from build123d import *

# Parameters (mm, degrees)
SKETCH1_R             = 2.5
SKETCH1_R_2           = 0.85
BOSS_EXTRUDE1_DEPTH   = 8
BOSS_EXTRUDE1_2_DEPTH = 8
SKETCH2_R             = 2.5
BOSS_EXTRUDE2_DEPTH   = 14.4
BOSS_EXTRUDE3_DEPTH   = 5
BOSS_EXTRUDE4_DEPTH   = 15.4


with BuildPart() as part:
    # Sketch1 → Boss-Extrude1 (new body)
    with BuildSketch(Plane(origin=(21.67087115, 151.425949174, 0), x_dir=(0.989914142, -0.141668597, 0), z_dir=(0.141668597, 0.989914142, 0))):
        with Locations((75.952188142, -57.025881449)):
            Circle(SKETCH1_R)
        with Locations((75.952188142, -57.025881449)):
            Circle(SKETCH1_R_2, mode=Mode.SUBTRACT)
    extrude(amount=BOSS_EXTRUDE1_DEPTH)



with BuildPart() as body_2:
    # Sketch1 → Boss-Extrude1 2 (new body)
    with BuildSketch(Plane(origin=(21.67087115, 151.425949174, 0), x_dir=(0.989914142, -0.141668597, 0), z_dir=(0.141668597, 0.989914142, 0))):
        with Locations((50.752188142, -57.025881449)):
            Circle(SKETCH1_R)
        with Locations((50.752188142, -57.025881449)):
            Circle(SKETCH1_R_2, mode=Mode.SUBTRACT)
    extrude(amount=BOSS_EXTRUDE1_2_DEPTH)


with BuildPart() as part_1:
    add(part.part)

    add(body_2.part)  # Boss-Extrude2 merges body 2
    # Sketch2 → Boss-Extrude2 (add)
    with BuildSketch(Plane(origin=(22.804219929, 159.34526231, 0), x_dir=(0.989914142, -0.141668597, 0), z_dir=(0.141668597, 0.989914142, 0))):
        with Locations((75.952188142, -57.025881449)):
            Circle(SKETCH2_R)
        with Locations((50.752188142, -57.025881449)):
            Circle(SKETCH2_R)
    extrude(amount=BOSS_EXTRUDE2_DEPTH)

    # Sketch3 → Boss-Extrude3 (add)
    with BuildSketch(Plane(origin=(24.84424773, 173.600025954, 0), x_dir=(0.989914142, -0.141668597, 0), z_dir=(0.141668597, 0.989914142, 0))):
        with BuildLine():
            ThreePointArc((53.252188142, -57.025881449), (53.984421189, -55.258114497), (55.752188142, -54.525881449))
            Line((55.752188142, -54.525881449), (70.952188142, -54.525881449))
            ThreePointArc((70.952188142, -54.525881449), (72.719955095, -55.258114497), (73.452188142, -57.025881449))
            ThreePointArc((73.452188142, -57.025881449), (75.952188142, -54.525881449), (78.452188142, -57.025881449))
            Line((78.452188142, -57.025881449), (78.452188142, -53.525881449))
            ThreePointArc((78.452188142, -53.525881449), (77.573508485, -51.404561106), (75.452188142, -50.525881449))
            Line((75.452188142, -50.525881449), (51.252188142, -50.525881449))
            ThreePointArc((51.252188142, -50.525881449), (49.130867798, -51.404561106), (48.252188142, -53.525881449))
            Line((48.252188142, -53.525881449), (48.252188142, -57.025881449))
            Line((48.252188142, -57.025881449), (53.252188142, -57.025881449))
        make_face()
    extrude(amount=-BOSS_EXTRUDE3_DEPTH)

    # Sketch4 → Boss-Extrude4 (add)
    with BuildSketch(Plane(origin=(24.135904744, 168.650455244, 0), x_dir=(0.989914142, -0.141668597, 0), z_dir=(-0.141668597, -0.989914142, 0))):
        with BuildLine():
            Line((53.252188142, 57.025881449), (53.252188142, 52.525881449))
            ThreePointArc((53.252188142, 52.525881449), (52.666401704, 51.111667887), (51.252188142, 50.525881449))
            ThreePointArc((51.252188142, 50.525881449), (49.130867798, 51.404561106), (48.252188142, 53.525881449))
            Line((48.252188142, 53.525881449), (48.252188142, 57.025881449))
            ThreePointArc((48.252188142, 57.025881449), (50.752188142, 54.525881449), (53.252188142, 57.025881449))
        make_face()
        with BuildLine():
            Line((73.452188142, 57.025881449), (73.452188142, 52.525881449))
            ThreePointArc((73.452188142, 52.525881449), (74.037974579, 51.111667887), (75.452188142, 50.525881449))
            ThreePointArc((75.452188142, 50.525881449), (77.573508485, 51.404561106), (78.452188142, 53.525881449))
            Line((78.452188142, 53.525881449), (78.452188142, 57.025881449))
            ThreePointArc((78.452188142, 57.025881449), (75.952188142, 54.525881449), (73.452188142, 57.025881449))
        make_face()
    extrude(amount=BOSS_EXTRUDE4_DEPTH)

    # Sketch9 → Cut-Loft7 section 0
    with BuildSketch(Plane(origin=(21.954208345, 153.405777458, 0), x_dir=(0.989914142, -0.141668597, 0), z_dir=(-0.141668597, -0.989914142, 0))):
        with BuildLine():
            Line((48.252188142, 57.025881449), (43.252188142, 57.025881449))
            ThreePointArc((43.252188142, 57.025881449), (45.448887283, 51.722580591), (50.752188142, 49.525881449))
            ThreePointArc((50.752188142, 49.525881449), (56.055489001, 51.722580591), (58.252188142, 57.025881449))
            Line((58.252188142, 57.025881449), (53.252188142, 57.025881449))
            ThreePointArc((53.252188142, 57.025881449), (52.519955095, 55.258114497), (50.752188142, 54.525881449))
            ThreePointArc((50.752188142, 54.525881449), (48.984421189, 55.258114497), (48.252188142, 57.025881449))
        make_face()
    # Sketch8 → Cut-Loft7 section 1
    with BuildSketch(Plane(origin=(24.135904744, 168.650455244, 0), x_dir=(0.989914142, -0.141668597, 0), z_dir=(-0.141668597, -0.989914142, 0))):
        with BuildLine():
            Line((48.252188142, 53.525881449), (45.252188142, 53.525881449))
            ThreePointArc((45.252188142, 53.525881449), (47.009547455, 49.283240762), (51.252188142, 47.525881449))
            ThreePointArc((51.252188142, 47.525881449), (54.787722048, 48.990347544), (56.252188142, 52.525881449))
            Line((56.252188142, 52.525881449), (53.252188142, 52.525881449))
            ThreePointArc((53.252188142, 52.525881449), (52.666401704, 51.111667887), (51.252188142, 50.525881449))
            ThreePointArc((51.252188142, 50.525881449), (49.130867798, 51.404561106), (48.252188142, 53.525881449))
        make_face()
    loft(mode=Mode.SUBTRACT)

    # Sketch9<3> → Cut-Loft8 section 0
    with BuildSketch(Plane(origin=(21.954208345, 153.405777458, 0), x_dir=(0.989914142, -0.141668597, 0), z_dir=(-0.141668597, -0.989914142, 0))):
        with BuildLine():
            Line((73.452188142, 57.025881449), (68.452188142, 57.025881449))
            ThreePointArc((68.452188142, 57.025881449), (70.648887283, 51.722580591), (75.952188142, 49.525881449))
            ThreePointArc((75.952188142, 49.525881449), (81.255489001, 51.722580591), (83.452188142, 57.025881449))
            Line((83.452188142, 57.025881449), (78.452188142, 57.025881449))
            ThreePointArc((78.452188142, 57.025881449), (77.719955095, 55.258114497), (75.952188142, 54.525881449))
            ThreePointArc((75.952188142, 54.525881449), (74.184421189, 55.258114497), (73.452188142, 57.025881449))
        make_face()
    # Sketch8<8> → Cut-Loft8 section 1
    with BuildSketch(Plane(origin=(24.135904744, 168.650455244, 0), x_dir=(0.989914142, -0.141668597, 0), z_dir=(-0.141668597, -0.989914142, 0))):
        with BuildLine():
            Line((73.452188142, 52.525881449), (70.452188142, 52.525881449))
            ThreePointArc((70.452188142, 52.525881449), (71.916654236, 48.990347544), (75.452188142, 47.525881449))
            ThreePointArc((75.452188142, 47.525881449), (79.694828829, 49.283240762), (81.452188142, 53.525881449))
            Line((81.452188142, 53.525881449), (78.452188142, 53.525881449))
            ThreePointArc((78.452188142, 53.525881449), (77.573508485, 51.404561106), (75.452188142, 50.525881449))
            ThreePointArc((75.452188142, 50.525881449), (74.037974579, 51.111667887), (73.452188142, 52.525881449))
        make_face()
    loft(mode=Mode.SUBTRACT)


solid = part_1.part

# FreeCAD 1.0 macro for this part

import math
import FreeCAD as App
import Part
import Sketcher
from FreeCAD import Vector
Q = App.Units.Quantity

doc = App.newDocument("Part")
body = doc.addObject("PartDesign::Body", "Body")

# Sketch on an angled plane
sketch1 = body.newObject("Sketcher::SketchObject", "Sketch")
sketch1.Placement = App.Placement(Vector(21.670871, 151.425949, 0), App.Rotation(Vector(0.989914142, -0.141668597, 0), Vector(0, 0, -1), Vector(0.141668597, 0.989914142, 0), "ZXY"))
sketch1.addGeometry(Part.Circle(Vector(75.952188, -57.025881, 0), Vector(0, 0, 1), 2.5), False)
sketch1.addGeometry(Part.Circle(Vector(75.952188, -57.025881, 0), Vector(0, 0, 1), 0.85), False)
sketch1.addConstraint(Sketcher.Constraint("Coincident", 1, 3, 0, 3))
sketch1.addConstraint(Sketcher.Constraint("Diameter", 0, Q("5 mm")))
sketch1.addConstraint(Sketcher.Constraint("Diameter", 1, Q("1.7 mm")))
sketch1.addConstraint(Sketcher.Constraint("DistanceX", -1, 1, 0, 3, Q("75.952188 mm")))
sketch1.addConstraint(Sketcher.Constraint("DistanceY", 0, 3, -1, 1, Q("57.025881 mm")))
pad1 = body.newObject("PartDesign::Pad", "Pad")
pad1.Profile = sketch1
pad1.Length = 8
body2 = doc.addObject("PartDesign::Body", "Body001")

# Sketch on an angled plane
sketch2 = body2.newObject("Sketcher::SketchObject", "Sketch001")
sketch2.Placement = App.Placement(Vector(21.670871, 151.425949, 0), App.Rotation(Vector(0.989914142, -0.141668597, 0), Vector(0, 0, -1), Vector(0.141668597, 0.989914142, 0), "ZXY"))
sketch2.addGeometry(Part.Circle(Vector(50.752188, -57.025881, 0), Vector(0, 0, 1), 2.5), False)
sketch2.addGeometry(Part.Circle(Vector(50.752188, -57.025881, 0), Vector(0, 0, 1), 0.85), False)
sketch2.addConstraint(Sketcher.Constraint("Coincident", 1, 3, 0, 3))
sketch2.addConstraint(Sketcher.Constraint("Diameter", 0, Q("5 mm")))
sketch2.addConstraint(Sketcher.Constraint("Diameter", 1, Q("1.7 mm")))
sketch2.addConstraint(Sketcher.Constraint("DistanceX", -1, 1, 0, 3, Q("50.752188 mm")))
sketch2.addConstraint(Sketcher.Constraint("DistanceY", 0, 3, -1, 1, Q("57.025881 mm")))
pad2 = body2.newObject("PartDesign::Pad", "Pad001")
pad2.Profile = sketch2
pad2.Length = 8
body.AllowCompound = True
doc.recompute()

boolean = body.newObject("PartDesign::Boolean", "Boolean")
boolean.Type = "Fuse"
boolean.addObjects([body2])

# Sketch on an angled plane
sketch3 = body.newObject("Sketcher::SketchObject", "Sketch002")
sketch3.Placement = App.Placement(Vector(22.80422, 159.345262, 0), App.Rotation(Vector(0.989914142, -0.141668597, 0), Vector(0, 0, -1), Vector(0.141668597, 0.989914142, 0), "ZXY"))
sketch3.addGeometry(Part.Circle(Vector(75.952188, -57.025881, 0), Vector(0, 0, 1), 2.5), False)
sketch3.addGeometry(Part.Circle(Vector(50.752188, -57.025881, 0), Vector(0, 0, 1), 2.5), False)
sketch3.addConstraint(Sketcher.Constraint("Equal", 0, 1))
sketch3.addConstraint(Sketcher.Constraint("Horizontal", 0, 3, 1, 3))
sketch3.addConstraint(Sketcher.Constraint("Diameter", 0, Q("5 mm")))
sketch3.addConstraint(Sketcher.Constraint("DistanceX", 1, 3, 0, 3, Q("25.2 mm")))
sketch3.addConstraint(Sketcher.Constraint("DistanceX", -1, 1, 0, 3, Q("75.952188 mm")))
sketch3.addConstraint(Sketcher.Constraint("DistanceY", 0, 3, -1, 1, Q("57.025881 mm")))
pad3 = body.newObject("PartDesign::Pad", "Pad002")
pad3.Profile = sketch3
pad3.Length = 14.4

# Sketch on an angled plane
sketch4 = body.newObject("Sketcher::SketchObject", "Sketch003")
sketch4.Placement = App.Placement(Vector(24.844248, 173.600026, 0), App.Rotation(Vector(0.989914142, -0.141668597, 0), Vector(0, 0, -1), Vector(0.141668597, 0.989914142, 0), "ZXY"))
sketch4.addGeometry(Part.ArcOfCircle(Part.Circle(Vector(55.752188, -57.025881, 0), Vector(0, 0, 1), 2.5), math.radians(90), math.radians(180)), False)
sketch4.addGeometry(Part.LineSegment(Vector(55.752188, -54.525881, 0), Vector(70.952188, -54.525881, 0)), False)
sketch4.addGeometry(Part.ArcOfCircle(Part.Circle(Vector(70.952188, -57.025881, 0), Vector(0, 0, 1), 2.5), math.radians(0), math.radians(90)), False)
sketch4.addGeometry(Part.ArcOfCircle(Part.Circle(Vector(75.952188, -57.025881, 0), Vector(0, 0, 1), 2.5), math.radians(0), math.radians(180)), False)
sketch4.addGeometry(Part.LineSegment(Vector(78.452188, -57.025881, 0), Vector(78.452188, -53.525881, 0)), False)
sketch4.addGeometry(Part.ArcOfCircle(Part.Circle(Vector(75.452188, -53.525881, 0), Vector(0, 0, 1), 3), math.radians(0), math.radians(90)), False)
sketch4.addGeometry(Part.LineSegment(Vector(75.452188, -50.525881, 0), Vector(51.252188, -50.525881, 0)), False)
sketch4.addGeometry(Part.ArcOfCircle(Part.Circle(Vector(51.252188, -53.525881, 0), Vector(0, 0, 1), 3), math.radians(90), math.radians(180)), False)
sketch4.addGeometry(Part.LineSegment(Vector(48.252188, -53.525881, 0), Vector(48.252188, -57.025881, 0)), False)
sketch4.addGeometry(Part.LineSegment(Vector(48.252188, -57.025881, 0), Vector(53.252188, -57.025881, 0)), False)
sketch4.addConstraint(Sketcher.Constraint("Tangent", 0, 1, 1, 1))
sketch4.addConstraint(Sketcher.Constraint("Tangent", 1, 2, 2, 2))
sketch4.addConstraint(Sketcher.Constraint("Tangent", 2, 1, 3, 2))
sketch4.addConstraint(Sketcher.Constraint("Tangent", 3, 1, 4, 1))
sketch4.addConstraint(Sketcher.Constraint("Tangent", 4, 2, 5, 1))
sketch4.addConstraint(Sketcher.Constraint("Tangent", 5, 2, 6, 1))
sketch4.addConstraint(Sketcher.Constraint("Tangent", 6, 2, 7, 1))
sketch4.addConstraint(Sketcher.Constraint("Tangent", 7, 2, 8, 1))
sketch4.addConstraint(Sketcher.Constraint("Coincident", 8, 2, 9, 1))
sketch4.addConstraint(Sketcher.Constraint("Coincident", 9, 2, 0, 2))
sketch4.addConstraint(Sketcher.Constraint("Horizontal", 1))
sketch4.addConstraint(Sketcher.Constraint("Vertical", 4))
sketch4.addConstraint(Sketcher.Constraint("Horizontal", 6))
sketch4.addConstraint(Sketcher.Constraint("Vertical", 8))
sketch4.addConstraint(Sketcher.Constraint("Horizontal", 9))
sketch4.addConstraint(Sketcher.Constraint("Equal", 0, 2))
sketch4.addConstraint(Sketcher.Constraint("Equal", 2, 3))
sketch4.addConstraint(Sketcher.Constraint("Equal", 5, 7))
sketch4.addConstraint(Sketcher.Constraint("Horizontal", 2, 3, 3, 3))
sketch4.addConstraint(Sketcher.Constraint("Horizontal", 3, 1, 8, 2))
sketch4.addConstraint(Sketcher.Constraint("Radius", 5, Q("3 mm")))
sketch4.addConstraint(Sketcher.Constraint("Radius", 0, Q("2.5 mm")))
sketch4.addConstraint(Sketcher.Constraint("DistanceX", 9, 1, 9, 2, Q("5 mm")))
sketch4.addConstraint(Sketcher.Constraint("DistanceX", 1, 1, 1, 2, Q("15.2 mm")))
sketch4.addConstraint(Sketcher.Constraint("DistanceY", 4, 1, 4, 2, Q("3.5 mm")))
sketch4.addConstraint(Sketcher.Constraint("DistanceX", -1, 1, 0, 3, Q("55.752188 mm")))
sketch4.addConstraint(Sketcher.Constraint("DistanceY", 0, 3, -1, 1, Q("57.025881 mm")))
pad4 = body.newObject("PartDesign::Pad", "Pad003")
pad4.Profile = sketch4
pad4.Length = 5
pad4.Reversed = True

# Sketch on an angled plane
sketch5 = body.newObject("Sketcher::SketchObject", "Sketch004")
sketch5.Placement = App.Placement(Vector(24.135905, 168.650455, 0), App.Rotation(Vector(0.989914142, -0.141668597, 0), Vector(0, 0, 1), Vector(-0.141668597, -0.989914142, 0), "ZXY"))
sketch5.addGeometry(Part.LineSegment(Vector(53.252188, 52.525881, 0), Vector(53.252188, 57.025881, 0)), False)
sketch5.addGeometry(Part.ArcOfCircle(Part.Circle(Vector(50.752188, 57.025881, 0), Vector(0, 0, 1), 2.5), math.radians(180), math.radians(360)), False)
sketch5.addGeometry(Part.LineSegment(Vector(48.252188, 57.025881, 0), Vector(48.252188, 53.525881, 0)), False)
sketch5.addGeometry(Part.ArcOfCircle(Part.Circle(Vector(51.252188, 53.525881, 0), Vector(0, 0, 1), 3), math.radians(180), math.radians(270)), False)
sketch5.addGeometry(Part.ArcOfCircle(Part.Circle(Vector(51.252188, 52.525881, 0), Vector(0, 0, 1), 2), math.radians(-90), math.radians(0)), False)
sketch5.addGeometry(Part.LineSegment(Vector(73.452188, 57.025881, 0), Vector(73.452188, 52.525881, 0)), False)
sketch5.addGeometry(Part.ArcOfCircle(Part.Circle(Vector(75.452188, 52.525881, 0), Vector(0, 0, 1), 2), math.radians(180), math.radians(270)), False)
sketch5.addGeometry(Part.ArcOfCircle(Part.Circle(Vector(75.452188, 53.525881, 0), Vector(0, 0, 1), 3), math.radians(-90), math.radians(0)), False)
sketch5.addGeometry(Part.LineSegment(Vector(78.452188, 53.525881, 0), Vector(78.452188, 57.025881, 0)), False)
sketch5.addGeometry(Part.ArcOfCircle(Part.Circle(Vector(75.952188, 57.025881, 0), Vector(0, 0, 1), 2.5), math.radians(180), math.radians(360)), False)
sketch5.addConstraint(Sketcher.Constraint("Tangent", 0, 2, 1, 2))
sketch5.addConstraint(Sketcher.Constraint("Tangent", 1, 1, 2, 1))
sketch5.addConstraint(Sketcher.Constraint("Tangent", 2, 2, 3, 1))
sketch5.addConstraint(Sketcher.Constraint("Tangent", 3, 2, 4, 1))
sketch5.addConstraint(Sketcher.Constraint("Tangent", 4, 2, 0, 1))
sketch5.addConstraint(Sketcher.Constraint("Tangent", 5, 2, 6, 1))
sketch5.addConstraint(Sketcher.Constraint("Tangent", 6, 2, 7, 1))
sketch5.addConstraint(Sketcher.Constraint("Tangent", 7, 2, 8, 1))
sketch5.addConstraint(Sketcher.Constraint("Tangent", 8, 2, 9, 2))
sketch5.addConstraint(Sketcher.Constraint("Tangent", 9, 1, 5, 1))
sketch5.addConstraint(Sketcher.Constraint("Vertical", 0))
sketch5.addConstraint(Sketcher.Constraint("Vertical", 2))
sketch5.addConstraint(Sketcher.Constraint("Vertical", 5))
sketch5.addConstraint(Sketcher.Constraint("Vertical", 8))
sketch5.addConstraint(Sketcher.Constraint("Equal", 4, 6))
sketch5.addConstraint(Sketcher.Constraint("Equal", 3, 7))
sketch5.addConstraint(Sketcher.Constraint("Equal", 1, 9))
sketch5.addConstraint(Sketcher.Constraint("Horizontal", 4, 3, 6, 3))
sketch5.addConstraint(Sketcher.Constraint("Horizontal", 1, 3, 9, 3))
sketch5.addConstraint(Sketcher.Constraint("Vertical", 3, 3, 4, 3))
sketch5.addConstraint(Sketcher.Constraint("Radius", 3, Q("3 mm")))
sketch5.addConstraint(Sketcher.Constraint("Radius", 4, Q("2 mm")))
sketch5.addConstraint(Sketcher.Constraint("DistanceY", 0, 1, 0, 2, Q("4.5 mm")))
sketch5.addConstraint(Sketcher.Constraint("DistanceX", 4, 3, 6, 3, Q("24.2 mm")))
sketch5.addConstraint(Sketcher.Constraint("DistanceX", -1, 1, 1, 3, Q("50.752188 mm")))
sketch5.addConstraint(Sketcher.Constraint("DistanceY", -1, 1, 1, 3, Q("57.025881 mm")))
pad5 = body.newObject("PartDesign::Pad", "Pad004")
pad5.Profile = sketch5
pad5.Length = 15.4

# Sketch on an angled plane
sketch6 = body.newObject("Sketcher::SketchObject", "Sketch005")
sketch6.Placement = App.Placement(Vector(21.954208, 153.405777, 0), App.Rotation(Vector(0.989914142, -0.141668597, 0), Vector(0, 0, 1), Vector(-0.141668597, -0.989914142, 0), "ZXY"))
sketch6.addGeometry(Part.LineSegment(Vector(48.252188, 57.025881, 0), Vector(43.252188, 57.025881, 0)), False)
sketch6.addGeometry(Part.ArcOfCircle(Part.Circle(Vector(50.752188, 57.025881, 0), Vector(0, 0, 1), 7.5), math.radians(-180), math.radians(-90)), False)
sketch6.addGeometry(Part.ArcOfCircle(Part.Circle(Vector(50.752188, 57.025881, 0), Vector(0, 0, 1), 7.5), math.radians(-90), math.radians(0)), False)
sketch6.addGeometry(Part.LineSegment(Vector(58.252188, 57.025881, 0), Vector(53.252188, 57.025881, 0)), False)
sketch6.addGeometry(Part.ArcOfCircle(Part.Circle(Vector(50.752188, 57.025881, 0), Vector(0, 0, 1), 2.5), math.radians(-90), math.radians(0)), False)
sketch6.addGeometry(Part.ArcOfCircle(Part.Circle(Vector(50.752188, 57.025881, 0), Vector(0, 0, 1), 2.5), math.radians(-180), math.radians(-90)), False)
sketch6.addConstraint(Sketcher.Constraint("Coincident", 0, 2, 1, 1))
sketch6.addConstraint(Sketcher.Constraint("Tangent", 1, 2, 2, 1))
sketch6.addConstraint(Sketcher.Constraint("Coincident", 2, 2, 3, 1))
sketch6.addConstraint(Sketcher.Constraint("Coincident", 3, 2, 4, 2))
sketch6.addConstraint(Sketcher.Constraint("Tangent", 4, 1, 5, 2))
sketch6.addConstraint(Sketcher.Constraint("Coincident", 5, 1, 0, 1))
sketch6.addConstraint(Sketcher.Constraint("Horizontal", 0))
sketch6.addConstraint(Sketcher.Constraint("Horizontal", 3))
sketch6.addConstraint(Sketcher.Constraint("Coincident", 4, 3, 1, 3))
sketch6.addConstraint(Sketcher.Constraint("Equal", 1, 2))
sketch6.addConstraint(Sketcher.Constraint("Equal", 4, 5))
sketch6.addConstraint(Sketcher.Constraint("Horizontal", 5, 3, 0, 2))
sketch6.addConstraint(Sketcher.Constraint("Horizontal", 0, 2, 2, 2))
sketch6.addConstraint(Sketcher.Constraint("Vertical", 5, 3, 1, 2))
sketch6.addConstraint(Sketcher.Constraint("Vertical", 1, 2, 4, 1))
sketch6.addConstraint(Sketcher.Constraint("Radius", 1, Q("7.5 mm")))
sketch6.addConstraint(Sketcher.Constraint("Radius", 4, Q("2.5 mm")))
sketch6.addConstraint(Sketcher.Constraint("DistanceX", -1, 1, 1, 3, Q("50.752188 mm")))
sketch6.addConstraint(Sketcher.Constraint("DistanceY", -1, 1, 1, 3, Q("57.025881 mm")))

# Sketch on an angled plane
sketch7 = body.newObject("Sketcher::SketchObject", "Sketch006")
sketch7.Placement = App.Placement(Vector(24.135905, 168.650455, 0), App.Rotation(Vector(0.989914142, -0.141668597, 0), Vector(0, 0, 1), Vector(-0.141668597, -0.989914142, 0), "ZXY"))
sketch7.addGeometry(Part.LineSegment(Vector(48.252188, 53.525881, 0), Vector(45.252188, 53.525881, 0)), False)
sketch7.addGeometry(Part.ArcOfCircle(Part.Circle(Vector(51.252188, 53.525881, 0), Vector(0, 0, 1), 6), math.radians(180), math.radians(270)), False)
sketch7.addGeometry(Part.ArcOfCircle(Part.Circle(Vector(51.252188, 52.525881, 0), Vector(0, 0, 1), 5), math.radians(-90), math.radians(0)), False)
sketch7.addGeometry(Part.LineSegment(Vector(56.252188, 52.525881, 0), Vector(53.252188, 52.525881, 0)), False)
sketch7.addGeometry(Part.ArcOfCircle(Part.Circle(Vector(51.252188, 52.525881, 0), Vector(0, 0, 1), 2), math.radians(-90), math.radians(0)), False)
sketch7.addGeometry(Part.ArcOfCircle(Part.Circle(Vector(51.252188, 53.525881, 0), Vector(0, 0, 1), 3), math.radians(180), math.radians(270)), False)
sketch7.addConstraint(Sketcher.Constraint("Coincident", 0, 2, 1, 1))
sketch7.addConstraint(Sketcher.Constraint("Tangent", 1, 2, 2, 1))
sketch7.addConstraint(Sketcher.Constraint("Coincident", 2, 2, 3, 1))
sketch7.addConstraint(Sketcher.Constraint("Coincident", 3, 2, 4, 2))
sketch7.addConstraint(Sketcher.Constraint("Tangent", 4, 1, 5, 2))
sketch7.addConstraint(Sketcher.Constraint("Coincident", 5, 1, 0, 1))
sketch7.addConstraint(Sketcher.Constraint("Horizontal", 0))
sketch7.addConstraint(Sketcher.Constraint("Horizontal", 3))
sketch7.addConstraint(Sketcher.Constraint("Coincident", 4, 3, 2, 3))
sketch7.addConstraint(Sketcher.Constraint("Coincident", 5, 3, 1, 3))
sketch7.addConstraint(Sketcher.Constraint("Horizontal", 5, 3, 0, 2))
sketch7.addConstraint(Sketcher.Constraint("Horizontal", 4, 3, 2, 2))
sketch7.addConstraint(Sketcher.Constraint("Vertical", 1, 3, 2, 3))
sketch7.addConstraint(Sketcher.Constraint("Radius", 1, Q("6 mm")))
sketch7.addConstraint(Sketcher.Constraint("Radius", 2, Q("5 mm")))
sketch7.addConstraint(Sketcher.Constraint("Radius", 4, Q("2 mm")))
sketch7.addConstraint(Sketcher.Constraint("DistanceX", -1, 1, 1, 3, Q("51.252188 mm")))
sketch7.addConstraint(Sketcher.Constraint("DistanceY", -1, 1, 1, 3, Q("53.525881 mm")))

subtractiveloft = body.newObject("PartDesign::SubtractiveLoft", "SubtractiveLoft")
subtractiveloft.Profile = sketch6
subtractiveloft.Sections = [sketch7]

# Sketch on an angled plane
sketch8 = body.newObject("Sketcher::SketchObject", "Sketch007")
sketch8.Placement = App.Placement(Vector(21.954208, 153.405777, 0), App.Rotation(Vector(0.989914142, -0.141668597, 0), Vector(0, 0, 1), Vector(-0.141668597, -0.989914142, 0), "ZXY"))
sketch8.addGeometry(Part.LineSegment(Vector(73.452188, 57.025881, 0), Vector(68.452188, 57.025881, 0)), False)
sketch8.addGeometry(Part.ArcOfCircle(Part.Circle(Vector(75.952188, 57.025881, 0), Vector(0, 0, 1), 7.5), math.radians(-180), math.radians(-90)), False)
sketch8.addGeometry(Part.ArcOfCircle(Part.Circle(Vector(75.952188, 57.025881, 0), Vector(0, 0, 1), 7.5), math.radians(-90), math.radians(0)), False)
sketch8.addGeometry(Part.LineSegment(Vector(83.452188, 57.025881, 0), Vector(78.452188, 57.025881, 0)), False)
sketch8.addGeometry(Part.ArcOfCircle(Part.Circle(Vector(75.952188, 57.025881, 0), Vector(0, 0, 1), 2.5), math.radians(-90), math.radians(0)), False)
sketch8.addGeometry(Part.ArcOfCircle(Part.Circle(Vector(75.952188, 57.025881, 0), Vector(0, 0, 1), 2.5), math.radians(-180), math.radians(-90)), False)
sketch8.addConstraint(Sketcher.Constraint("Coincident", 0, 2, 1, 1))
sketch8.addConstraint(Sketcher.Constraint("Tangent", 1, 2, 2, 1))
sketch8.addConstraint(Sketcher.Constraint("Coincident", 2, 2, 3, 1))
sketch8.addConstraint(Sketcher.Constraint("Coincident", 3, 2, 4, 2))
sketch8.addConstraint(Sketcher.Constraint("Tangent", 4, 1, 5, 2))
sketch8.addConstraint(Sketcher.Constraint("Coincident", 5, 1, 0, 1))
sketch8.addConstraint(Sketcher.Constraint("Horizontal", 0))
sketch8.addConstraint(Sketcher.Constraint("Horizontal", 3))
sketch8.addConstraint(Sketcher.Constraint("Coincident", 4, 3, 1, 3))
sketch8.addConstraint(Sketcher.Constraint("Equal", 1, 2))
sketch8.addConstraint(Sketcher.Constraint("Equal", 4, 5))
sketch8.addConstraint(Sketcher.Constraint("Horizontal", 5, 3, 0, 2))
sketch8.addConstraint(Sketcher.Constraint("Horizontal", 0, 2, 2, 2))
sketch8.addConstraint(Sketcher.Constraint("Vertical", 5, 3, 1, 2))
sketch8.addConstraint(Sketcher.Constraint("Vertical", 1, 2, 4, 1))
sketch8.addConstraint(Sketcher.Constraint("Radius", 1, Q("7.5 mm")))
sketch8.addConstraint(Sketcher.Constraint("Radius", 4, Q("2.5 mm")))
sketch8.addConstraint(Sketcher.Constraint("DistanceX", -1, 1, 1, 3, Q("75.952188 mm")))
sketch8.addConstraint(Sketcher.Constraint("DistanceY", -1, 1, 1, 3, Q("57.025881 mm")))

# Sketch on an angled plane
sketch9 = body.newObject("Sketcher::SketchObject", "Sketch008")
sketch9.Placement = App.Placement(Vector(24.135905, 168.650455, 0), App.Rotation(Vector(0.989914142, -0.141668597, 0), Vector(0, 0, 1), Vector(-0.141668597, -0.989914142, 0), "ZXY"))
sketch9.addGeometry(Part.LineSegment(Vector(73.452188, 52.525881, 0), Vector(70.452188, 52.525881, 0)), False)
sketch9.addGeometry(Part.ArcOfCircle(Part.Circle(Vector(75.452188, 52.525881, 0), Vector(0, 0, 1), 5), math.radians(-180), math.radians(-90)), False)
sketch9.addGeometry(Part.ArcOfCircle(Part.Circle(Vector(75.452188, 53.525881, 0), Vector(0, 0, 1), 6), math.radians(-90), math.radians(0)), False)
sketch9.addGeometry(Part.LineSegment(Vector(81.452188, 53.525881, 0), Vector(78.452188, 53.525881, 0)), False)
sketch9.addGeometry(Part.ArcOfCircle(Part.Circle(Vector(75.452188, 53.525881, 0), Vector(0, 0, 1), 3), math.radians(-90), math.radians(0)), False)
sketch9.addGeometry(Part.ArcOfCircle(Part.Circle(Vector(75.452188, 52.525881, 0), Vector(0, 0, 1), 2), math.radians(180), math.radians(270)), False)
sketch9.addConstraint(Sketcher.Constraint("Coincident", 0, 2, 1, 1))
sketch9.addConstraint(Sketcher.Constraint("Tangent", 1, 2, 2, 1))
sketch9.addConstraint(Sketcher.Constraint("Coincident", 2, 2, 3, 1))
sketch9.addConstraint(Sketcher.Constraint("Coincident", 3, 2, 4, 2))
sketch9.addConstraint(Sketcher.Constraint("Tangent", 4, 1, 5, 2))
sketch9.addConstraint(Sketcher.Constraint("Coincident", 5, 1, 0, 1))
sketch9.addConstraint(Sketcher.Constraint("Horizontal", 0))
sketch9.addConstraint(Sketcher.Constraint("Horizontal", 3))
sketch9.addConstraint(Sketcher.Constraint("Coincident", 4, 3, 2, 3))
sketch9.addConstraint(Sketcher.Constraint("Coincident", 5, 3, 1, 3))
sketch9.addConstraint(Sketcher.Constraint("Horizontal", 5, 3, 0, 2))
sketch9.addConstraint(Sketcher.Constraint("Horizontal", 4, 3, 2, 2))
sketch9.addConstraint(Sketcher.Constraint("Vertical", 1, 3, 2, 3))
sketch9.addConstraint(Sketcher.Constraint("Radius", 1, Q("5 mm")))
sketch9.addConstraint(Sketcher.Constraint("Radius", 2, Q("6 mm")))
sketch9.addConstraint(Sketcher.Constraint("Radius", 4, Q("3 mm")))
sketch9.addConstraint(Sketcher.Constraint("DistanceX", -1, 1, 1, 3, Q("75.452188 mm")))
sketch9.addConstraint(Sketcher.Constraint("DistanceY", -1, 1, 1, 3, Q("52.525881 mm")))

subtractiveloft2 = body.newObject("PartDesign::SubtractiveLoft", "SubtractiveLoft001")
subtractiveloft2.Profile = sketch8
subtractiveloft2.Sections = [sketch9]

doc.recompute()
